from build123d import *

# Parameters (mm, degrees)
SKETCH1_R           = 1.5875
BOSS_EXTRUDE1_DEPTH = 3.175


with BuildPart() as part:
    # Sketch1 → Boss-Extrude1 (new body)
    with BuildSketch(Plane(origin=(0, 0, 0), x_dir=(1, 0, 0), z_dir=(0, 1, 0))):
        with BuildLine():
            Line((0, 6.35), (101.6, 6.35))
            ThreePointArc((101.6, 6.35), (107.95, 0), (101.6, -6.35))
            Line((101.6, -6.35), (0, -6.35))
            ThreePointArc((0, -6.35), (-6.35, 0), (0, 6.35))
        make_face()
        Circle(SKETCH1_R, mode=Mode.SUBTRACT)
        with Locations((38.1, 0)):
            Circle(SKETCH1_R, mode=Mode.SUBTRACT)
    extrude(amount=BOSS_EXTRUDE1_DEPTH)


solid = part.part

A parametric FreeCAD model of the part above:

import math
import FreeCAD as App
import Part
import Sketcher
Q = App.Units.Quantity

doc = App.newDocument("Part")
body = doc.addObject("PartDesign::Body", "Body")

# Sketch on XZ plane
sketch1 = body.newObject("Sketcher::SketchObject", "Sketch")
sketch1.AttachmentSupport = (doc.getObject("XZ_Plane"), [""])
sketch1.MapMode = "FlatFace"
sketch1.addGeometry([
    Part.LineSegment(App.Vector(101.6, -6.3, 0), App.Vector(0, -6.3, 0)),  # 0
    Part.ArcOfCircle(Part.Circle(App.Vector(0, 0, 0), App.Vector(0, 0, 1), 6.3), math.radians(90), math.radians(270)),  # 1
    Part.LineSegment(App.Vector(0, 6.3, 0), App.Vector(101.6, 6.3, 0)),  # 2
    Part.ArcOfCircle(Part.Circle(App.Vector(101.6, 0, 0), App.Vector(0, 0, 1), 6.3), math.radians(-90), math.radians(90)),  # 3
    Part.Circle(App.Vector(38.1, 0, 0), App.Vector(0, 0, 1), 1.6),  # 4
    Part.Circle(App.Vector(0, 0, 0), App.Vector(0, 0, 1), 1.6),  # 5
], False)
sketch1.addConstraint([
    Sketcher.Constraint("Tangent", 0, 2, 1, 2),
    Sketcher.Constraint("Tangent", 1, 1, 2, 1),
    Sketcher.Constraint("Tangent", 2, 2, 3, 2),
    Sketcher.Constraint("Tangent", 3, 1, 0, 1),
    Sketcher.Constraint("Horizontal", 0),
    Sketcher.Constraint("Horizontal", 2),
    Sketcher.Constraint("Coincident", 1, 3, -1, 1),
    Sketcher.Constraint("Coincident", 5, 3, -1, 1),
    Sketcher.Constraint("Equal", 4, 5),
    Sketcher.Constraint("PointOnObject", 4, 3, -1),
    Sketcher.Constraint("DistanceX", 0, 2, 0, 1, Q("4 in")),
    Sketcher.Constraint("Radius", 1, Q("0.25 in")),
    Sketcher.Constraint("Diameter", 4, Q("0.125 in")),
    Sketcher.Constraint("DistanceX", -1, 1, 4, 3, Q("1.5 in")),
])
pad1 = body.newObject("PartDesign::Pad", "Pad")
pad1.Profile = sketch1
pad1.Length = Q("0.125 in")
pad1.Reversed = True

doc.recompute()
